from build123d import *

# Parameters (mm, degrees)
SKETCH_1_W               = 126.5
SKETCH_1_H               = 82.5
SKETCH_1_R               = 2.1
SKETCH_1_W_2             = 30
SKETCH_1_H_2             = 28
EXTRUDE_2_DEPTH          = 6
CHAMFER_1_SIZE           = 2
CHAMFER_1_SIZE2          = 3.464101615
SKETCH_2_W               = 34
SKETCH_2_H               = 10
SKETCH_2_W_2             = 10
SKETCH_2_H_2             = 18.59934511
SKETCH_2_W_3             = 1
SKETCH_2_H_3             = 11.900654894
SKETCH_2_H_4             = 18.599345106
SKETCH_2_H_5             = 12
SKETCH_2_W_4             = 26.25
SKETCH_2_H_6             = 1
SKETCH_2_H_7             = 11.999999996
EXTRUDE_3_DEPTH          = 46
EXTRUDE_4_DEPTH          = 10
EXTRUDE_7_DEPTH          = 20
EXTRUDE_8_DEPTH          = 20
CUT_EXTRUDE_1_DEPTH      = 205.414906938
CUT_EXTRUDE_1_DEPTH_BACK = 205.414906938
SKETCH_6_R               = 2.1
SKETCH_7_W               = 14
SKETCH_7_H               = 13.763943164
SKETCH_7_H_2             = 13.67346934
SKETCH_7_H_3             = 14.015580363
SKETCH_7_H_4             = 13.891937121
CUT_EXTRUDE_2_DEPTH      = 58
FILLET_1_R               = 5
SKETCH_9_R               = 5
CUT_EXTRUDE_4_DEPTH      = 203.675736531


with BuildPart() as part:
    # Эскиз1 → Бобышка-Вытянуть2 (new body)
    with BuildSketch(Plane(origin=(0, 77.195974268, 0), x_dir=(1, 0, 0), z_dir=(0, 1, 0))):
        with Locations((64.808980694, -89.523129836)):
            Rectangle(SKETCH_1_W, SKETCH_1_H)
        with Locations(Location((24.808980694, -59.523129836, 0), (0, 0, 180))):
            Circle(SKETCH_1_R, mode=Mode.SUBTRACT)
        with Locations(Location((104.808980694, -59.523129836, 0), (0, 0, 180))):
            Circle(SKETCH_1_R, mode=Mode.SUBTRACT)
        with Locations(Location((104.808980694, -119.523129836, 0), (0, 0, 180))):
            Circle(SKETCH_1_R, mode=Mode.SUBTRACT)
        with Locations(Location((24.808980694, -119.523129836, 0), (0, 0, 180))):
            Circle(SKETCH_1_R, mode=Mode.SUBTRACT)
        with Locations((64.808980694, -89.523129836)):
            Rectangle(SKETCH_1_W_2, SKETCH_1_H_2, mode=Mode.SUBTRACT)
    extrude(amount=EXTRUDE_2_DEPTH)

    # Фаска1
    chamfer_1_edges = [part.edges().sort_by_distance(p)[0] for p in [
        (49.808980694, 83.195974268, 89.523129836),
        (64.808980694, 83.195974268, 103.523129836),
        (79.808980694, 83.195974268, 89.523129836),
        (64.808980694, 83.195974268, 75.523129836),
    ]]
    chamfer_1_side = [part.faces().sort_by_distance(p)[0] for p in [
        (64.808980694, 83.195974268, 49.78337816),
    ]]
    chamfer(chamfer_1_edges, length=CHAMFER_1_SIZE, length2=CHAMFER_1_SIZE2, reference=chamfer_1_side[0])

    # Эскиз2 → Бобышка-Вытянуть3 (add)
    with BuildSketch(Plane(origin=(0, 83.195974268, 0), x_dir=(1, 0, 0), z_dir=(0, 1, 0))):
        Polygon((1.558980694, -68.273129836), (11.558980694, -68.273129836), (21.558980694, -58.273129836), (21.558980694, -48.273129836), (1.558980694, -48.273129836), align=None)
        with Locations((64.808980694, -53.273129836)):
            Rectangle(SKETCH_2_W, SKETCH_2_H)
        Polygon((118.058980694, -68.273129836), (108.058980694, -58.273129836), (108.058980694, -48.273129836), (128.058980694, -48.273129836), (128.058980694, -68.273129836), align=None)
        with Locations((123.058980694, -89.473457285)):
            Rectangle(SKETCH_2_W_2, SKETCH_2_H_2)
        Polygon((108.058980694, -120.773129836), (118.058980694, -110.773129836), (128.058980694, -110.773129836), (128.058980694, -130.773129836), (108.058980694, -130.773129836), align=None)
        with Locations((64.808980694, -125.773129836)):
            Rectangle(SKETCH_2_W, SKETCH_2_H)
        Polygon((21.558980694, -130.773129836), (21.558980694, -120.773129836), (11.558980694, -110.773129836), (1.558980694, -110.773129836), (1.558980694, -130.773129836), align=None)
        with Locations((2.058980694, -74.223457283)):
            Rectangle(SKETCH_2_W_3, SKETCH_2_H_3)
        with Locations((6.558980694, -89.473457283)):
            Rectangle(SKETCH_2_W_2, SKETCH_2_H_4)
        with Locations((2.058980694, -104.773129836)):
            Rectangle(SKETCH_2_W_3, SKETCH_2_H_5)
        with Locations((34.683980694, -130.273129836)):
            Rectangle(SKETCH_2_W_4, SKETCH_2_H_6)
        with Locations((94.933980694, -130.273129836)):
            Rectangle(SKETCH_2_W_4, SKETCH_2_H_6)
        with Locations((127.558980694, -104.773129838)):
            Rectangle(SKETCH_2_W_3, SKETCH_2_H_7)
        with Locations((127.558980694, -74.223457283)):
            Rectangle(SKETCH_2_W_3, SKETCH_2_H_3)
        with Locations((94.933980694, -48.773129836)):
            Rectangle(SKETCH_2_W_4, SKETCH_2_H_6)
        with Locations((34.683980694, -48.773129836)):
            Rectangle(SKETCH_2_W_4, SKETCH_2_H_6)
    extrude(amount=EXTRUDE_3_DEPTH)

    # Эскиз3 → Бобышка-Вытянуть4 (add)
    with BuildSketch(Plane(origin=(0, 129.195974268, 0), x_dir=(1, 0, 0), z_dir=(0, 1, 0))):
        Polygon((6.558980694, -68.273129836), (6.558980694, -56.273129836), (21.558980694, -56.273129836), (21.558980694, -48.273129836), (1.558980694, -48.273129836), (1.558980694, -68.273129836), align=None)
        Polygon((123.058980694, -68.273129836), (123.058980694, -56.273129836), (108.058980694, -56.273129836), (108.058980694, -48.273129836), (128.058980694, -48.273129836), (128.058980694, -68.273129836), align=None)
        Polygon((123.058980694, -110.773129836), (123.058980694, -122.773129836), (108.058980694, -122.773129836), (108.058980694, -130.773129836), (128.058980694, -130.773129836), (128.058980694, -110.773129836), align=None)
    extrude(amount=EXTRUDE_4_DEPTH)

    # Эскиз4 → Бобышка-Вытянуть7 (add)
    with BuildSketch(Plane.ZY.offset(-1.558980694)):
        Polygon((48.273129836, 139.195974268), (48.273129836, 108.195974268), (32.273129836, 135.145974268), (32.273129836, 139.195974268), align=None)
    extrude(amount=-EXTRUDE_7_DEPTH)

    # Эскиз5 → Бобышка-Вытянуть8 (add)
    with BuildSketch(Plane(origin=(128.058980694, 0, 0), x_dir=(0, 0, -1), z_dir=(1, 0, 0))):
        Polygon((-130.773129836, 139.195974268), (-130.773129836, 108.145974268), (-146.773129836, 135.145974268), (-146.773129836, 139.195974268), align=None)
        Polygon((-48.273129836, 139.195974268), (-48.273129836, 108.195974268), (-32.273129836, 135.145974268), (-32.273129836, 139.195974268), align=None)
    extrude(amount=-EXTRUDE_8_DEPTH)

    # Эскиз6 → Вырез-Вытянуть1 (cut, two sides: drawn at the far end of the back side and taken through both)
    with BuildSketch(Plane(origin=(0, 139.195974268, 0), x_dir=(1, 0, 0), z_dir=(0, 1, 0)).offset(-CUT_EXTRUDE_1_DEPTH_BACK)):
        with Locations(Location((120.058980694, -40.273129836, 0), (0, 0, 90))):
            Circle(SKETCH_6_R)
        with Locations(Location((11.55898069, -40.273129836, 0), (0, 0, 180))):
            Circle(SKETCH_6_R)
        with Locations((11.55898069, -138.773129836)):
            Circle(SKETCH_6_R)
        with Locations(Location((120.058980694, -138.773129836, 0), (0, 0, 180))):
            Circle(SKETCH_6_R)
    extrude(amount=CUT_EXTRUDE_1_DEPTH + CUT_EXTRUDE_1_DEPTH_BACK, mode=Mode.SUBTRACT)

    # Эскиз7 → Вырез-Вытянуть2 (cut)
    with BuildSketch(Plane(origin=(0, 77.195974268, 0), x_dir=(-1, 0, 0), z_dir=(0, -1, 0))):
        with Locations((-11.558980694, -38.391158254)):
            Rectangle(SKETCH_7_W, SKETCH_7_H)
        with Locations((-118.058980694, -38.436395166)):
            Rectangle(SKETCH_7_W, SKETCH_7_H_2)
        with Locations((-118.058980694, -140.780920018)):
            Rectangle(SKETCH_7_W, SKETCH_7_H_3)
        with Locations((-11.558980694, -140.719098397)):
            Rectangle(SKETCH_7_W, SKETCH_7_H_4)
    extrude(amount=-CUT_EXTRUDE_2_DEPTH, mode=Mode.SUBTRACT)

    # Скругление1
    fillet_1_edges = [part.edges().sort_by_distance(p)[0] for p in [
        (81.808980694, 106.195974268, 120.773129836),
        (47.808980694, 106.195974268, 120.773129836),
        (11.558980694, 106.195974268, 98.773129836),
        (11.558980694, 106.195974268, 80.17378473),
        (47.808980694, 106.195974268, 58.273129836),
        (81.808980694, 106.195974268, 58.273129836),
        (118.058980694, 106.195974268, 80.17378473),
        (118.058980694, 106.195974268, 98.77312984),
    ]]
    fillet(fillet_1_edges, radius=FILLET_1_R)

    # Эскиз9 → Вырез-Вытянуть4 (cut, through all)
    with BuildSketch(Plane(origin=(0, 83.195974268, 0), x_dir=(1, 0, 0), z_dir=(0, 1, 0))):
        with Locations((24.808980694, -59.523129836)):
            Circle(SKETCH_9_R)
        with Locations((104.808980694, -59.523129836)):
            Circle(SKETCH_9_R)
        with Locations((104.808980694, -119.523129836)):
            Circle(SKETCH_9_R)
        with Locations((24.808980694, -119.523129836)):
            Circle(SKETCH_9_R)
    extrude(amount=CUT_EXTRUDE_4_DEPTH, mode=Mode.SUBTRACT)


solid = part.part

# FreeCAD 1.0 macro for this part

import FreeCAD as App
import Part
import Sketcher

V = App.Vector
Q = App.Units.Quantity


def edges_at(feature, points):
    """Names of the edges that pass closest to the given points."""
    edges = feature.Shape.Edges
    near = lambda p: min(range(len(edges)), key=lambda i: edges[i].distToShape(Part.Vertex(*p))[0])
    return sorted({f"Edge{near(p) + 1}" for p in points})


def add_polygon(sketch, points):
    """Adds a closed chain of lines whose ends are joined by coincident constraints."""
    first, n = sketch.GeometryCount, len(points)
    for a, b in zip(points, points[1:] + points[:1]):
        sketch.addGeometry(Part.LineSegment(App.Vector(*a, 0), App.Vector(*b, 0)), False)
    for i in range(n):
        sketch.addConstraint(Sketcher.Constraint("Coincident", first + i, 2, first + (i + 1) % n, 1))

doc = App.newDocument("Part")
body = doc.addObject("PartDesign::Body", "Body")

# Sketch on XZ plane
sketch1 = body.newObject("Sketcher::SketchObject", "Sketch")
sketch1.AttachmentSupport = (doc.getObject("XZ_Plane"), [""])
sketch1.MapMode = "FlatFace"
sketch1.AttachmentOffset = App.Placement(V(0, 0, -77.195974), App.Rotation())
add_polygon(sketch1, [(1.6, 48.3), (1.6, 130.8), (128.1, 130.8), (128.1, 48.3)])  # lines 0-3
sketch1.addGeometry(Part.Circle(V(24.8, 119.5, 0), V(0, 0, 1), 2.1), False)  # 4
sketch1.addGeometry(Part.Circle(V(104.8, 119.5, 0), V(0, 0, 1), 2.1), False)  # 5
sketch1.addGeometry(Part.Circle(V(24.8, 59.5, 0), V(0, 0, 1), 2.1), False)  # 6
add_polygon(sketch1, [(79.8, 103.5), (49.8, 103.5), (49.8, 75.5), (79.8, 75.5)])  # lines 7-10
sketch1.addGeometry(Part.Circle(V(104.8, 59.5, 0), V(0, 0, 1), 2.1), False)  # 11
sketch1.addConstraint(Sketcher.Constraint("Vertical", 0))
sketch1.addConstraint(Sketcher.Constraint("Horizontal", 1))
sketch1.addConstraint(Sketcher.Constraint("Vertical", 2))
sketch1.addConstraint(Sketcher.Constraint("Horizontal", 3))
sketch1.addConstraint(Sketcher.Constraint("Horizontal", 7))
sketch1.addConstraint(Sketcher.Constraint("Vertical", 8))
sketch1.addConstraint(Sketcher.Constraint("Horizontal", 9))
sketch1.addConstraint(Sketcher.Constraint("Vertical", 10))
sketch1.addConstraint(Sketcher.Constraint("Equal", 4, 5))
sketch1.addConstraint(Sketcher.Constraint("Equal", 5, 6))
sketch1.addConstraint(Sketcher.Constraint("Equal", 6, 11))
sketch1.addConstraint(Sketcher.Constraint("Horizontal", 4, 3, 5, 3))
sketch1.addConstraint(Sketcher.Constraint("Horizontal", 6, 3, 11, 3))
sketch1.addConstraint(Sketcher.Constraint("Vertical", 4, 3, 6, 3))
sketch1.addConstraint(Sketcher.Constraint("Vertical", 5, 3, 11, 3))
sketch1.addConstraint(Sketcher.Constraint("Diameter", 4, Q("4.2 mm")))
sketch1.addConstraint(Sketcher.Constraint("DistanceX", 7, 2, 7, 1, Q("30 mm")))
sketch1.addConstraint(Sketcher.Constraint("DistanceY", 8, 2, 8, 1, Q("28 mm")))
sketch1.addConstraint(Sketcher.Constraint("DistanceX", 1, 1, 1, 2, Q("126.5 mm")))
sketch1.addConstraint(Sketcher.Constraint("DistanceY", 0, 1, 0, 2, Q("82.5 mm")))
sketch1.addConstraint(Sketcher.Constraint("DistanceX", 4, 3, 5, 3, Q("80 mm")))
sketch1.addConstraint(Sketcher.Constraint("DistanceY", 6, 3, 4, 3, Q("60 mm")))
sketch1.addConstraint(Sketcher.Constraint("DistanceX", 4, 3, 7, 2, Q("25 mm")))
sketch1.addConstraint(Sketcher.Constraint("DistanceY", 7, 2, 4, 3, Q("16 mm")))
sketch1.addConstraint(Sketcher.Constraint("DistanceX", 0, 2, 4, 3, Q("23.25 mm")))
sketch1.addConstraint(Sketcher.Constraint("DistanceY", 4, 3, 0, 2, Q("11.25 mm")))
sketch1.addConstraint(Sketcher.Constraint("DistanceX", -1, 1, 4, 3, Q("24.808981 mm")))
sketch1.addConstraint(Sketcher.Constraint("DistanceY", -1, 1, 4, 3, Q("119.52313 mm")))
pad1 = body.newObject("PartDesign::Pad", "Pad")
pad1.Profile = sketch1
pad1.Length = 6
pad1.Reversed = True
doc.recompute()

chamfer = body.newObject("PartDesign::Chamfer", "Chamfer")
chamfer.Base = (pad1, edges_at(pad1, [
    (49.809, 83.196, 89.523),
    (64.809, 83.196, 103.523),
    (79.809, 83.196, 89.523),
    (64.809, 83.196, 75.523),
]))
chamfer.ChamferType = "Two distances"
chamfer.Size = 2
chamfer.Size2 = 3.464102
chamfer.FlipDirection = True

# Sketch on XZ plane
sketch2 = body.newObject("Sketcher::SketchObject", "Sketch001")
sketch2.AttachmentSupport = (doc.getObject("XZ_Plane"), [""])
sketch2.MapMode = "FlatFace"
sketch2.AttachmentOffset = App.Placement(V(0, 0, -83.195974), App.Rotation())
add_polygon(sketch2, [(2, 48), (2, 131), (128, 131), (128, 48)])  # lines 0-3
add_polygon(sketch2, [(3, 68), (12, 68), (22, 58), (22, 49), (48, 49), (48, 58), (82, 58), (82, 49), (108, 49), (108, 58), (118, 68), (127, 68), (127, 80), (118, 80), (118, 99), (127, 99), (127, 111), (118, 111), (108, 121), (108, 130), (82, 130), (82, 121), (48, 121), (48, 130), (22, 130), (22, 121), (12, 111), (3, 111), (3, 99), (12, 99), (12, 80), (3, 80)])  # lines 4-35
sketch2.addConstraint(Sketcher.Constraint("Vertical", 0))
sketch2.addConstraint(Sketcher.Constraint("Horizontal", 1))
sketch2.addConstraint(Sketcher.Constraint("Vertical", 2))
sketch2.addConstraint(Sketcher.Constraint("Horizontal", 3))
sketch2.addConstraint(Sketcher.Constraint("Horizontal", 4))
sketch2.addConstraint(Sketcher.Constraint("Vertical", 6))
sketch2.addConstraint(Sketcher.Constraint("Horizontal", 7))
sketch2.addConstraint(Sketcher.Constraint("Vertical", 8))
sketch2.addConstraint(Sketcher.Constraint("Horizontal", 9))
sketch2.addConstraint(Sketcher.Constraint("Vertical", 10))
sketch2.addConstraint(Sketcher.Constraint("Horizontal", 11))
sketch2.addConstraint(Sketcher.Constraint("Vertical", 12))
sketch2.addConstraint(Sketcher.Constraint("Horizontal", 14))
sketch2.addConstraint(Sketcher.Constraint("Vertical", 15))
sketch2.addConstraint(Sketcher.Constraint("Horizontal", 16))
sketch2.addConstraint(Sketcher.Constraint("Vertical", 17))
sketch2.addConstraint(Sketcher.Constraint("Horizontal", 18))
sketch2.addConstraint(Sketcher.Constraint("Vertical", 19))
sketch2.addConstraint(Sketcher.Constraint("Horizontal", 20))
sketch2.addConstraint(Sketcher.Constraint("Vertical", 22))
sketch2.addConstraint(Sketcher.Constraint("Horizontal", 23))
sketch2.addConstraint(Sketcher.Constraint("Vertical", 24))
sketch2.addConstraint(Sketcher.Constraint("Horizontal", 25))
sketch2.addConstraint(Sketcher.Constraint("Vertical", 26))
sketch2.addConstraint(Sketcher.Constraint("Horizontal", 27))
sketch2.addConstraint(Sketcher.Constraint("Vertical", 28))
sketch2.addConstraint(Sketcher.Constraint("Horizontal", 30))
sketch2.addConstraint(Sketcher.Constraint("Vertical", 31))
sketch2.addConstraint(Sketcher.Constraint("Horizontal", 32))
sketch2.addConstraint(Sketcher.Constraint("Vertical", 33))
sketch2.addConstraint(Sketcher.Constraint("Horizontal", 34))
sketch2.addConstraint(Sketcher.Constraint("Vertical", 35))
sketch2.addConstraint(Sketcher.Constraint("Perpendicular", 5, 13))
sketch2.addConstraint(Sketcher.Constraint("Perpendicular", 13, 21))
sketch2.addConstraint(Sketcher.Constraint("Perpendicular", 21, 29))
sketch2.addConstraint(Sketcher.Constraint("Horizontal", 5, 2, 8, 2))
sketch2.addConstraint(Sketcher.Constraint("Horizontal", 7, 2, 10, 2))
sketch2.addConstraint(Sketcher.Constraint("Horizontal", 9, 2, 12, 2))
sketch2.addConstraint(Sketcher.Constraint("Horizontal", 4, 2, 13, 2))
sketch2.addConstraint(Sketcher.Constraint("Horizontal", 21, 2, 24, 2))
sketch2.addConstraint(Sketcher.Constraint("Horizontal", 23, 2, 26, 2))
sketch2.addConstraint(Sketcher.Constraint("Horizontal", 25, 2, 28, 2))
sketch2.addConstraint(Sketcher.Constraint("Horizontal", 20, 2, 29, 2))
sketch2.addConstraint(Sketcher.Constraint("Horizontal", 18, 2, 31, 2))
sketch2.addConstraint(Sketcher.Constraint("Horizontal", 16, 2, 33, 2))
sketch2.addConstraint(Sketcher.Constraint("Vertical", 13, 2, 16, 2))
sketch2.addConstraint(Sketcher.Constraint("Vertical", 15, 2, 18, 2))
sketch2.addConstraint(Sketcher.Constraint("Vertical", 17, 2, 20, 2))
sketch2.addConstraint(Sketcher.Constraint("Vertical", 12, 2, 21, 2))
sketch2.addConstraint(Sketcher.Constraint("Vertical", 10, 2, 23, 2))
sketch2.addConstraint(Sketcher.Constraint("Vertical", 8, 2, 25, 2))
sketch2.addConstraint(Sketcher.Constraint("Vertical", 6, 2, 27, 2))
sketch2.addConstraint(Sketcher.Constraint("Vertical", 4, 2, 29, 2))
sketch2.addConstraint(Sketcher.Constraint("Vertical", 29, 2, 32, 2))
sketch2.addConstraint(Sketcher.Constraint("Vertical", 31, 2, 34, 2))
sketch2.addConstraint(Sketcher.Constraint("Equal", 7, 11))
sketch2.addConstraint(Sketcher.Constraint("Equal", 4, 14))
sketch2.addConstraint(Sketcher.Constraint("Equal", 34, 6))
sketch2.addConstraint(Sketcher.Constraint("Equal", 12, 22))
sketch2.addConstraint(Sketcher.Constraint("DistanceX", 4, 1, 4, 2, Q("9 mm")))
sketch2.addConstraint(Sketcher.Constraint("DistanceX", 9, 1, 9, 2, Q("34 mm")))
sketch2.addConstraint(Sketcher.Constraint("DistanceY", 19, 1, 19, 2, Q("12 mm")))
sketch2.addConstraint(Sketcher.Constraint("DistanceX", 1, 1, 1, 2, Q("126.5 mm")))
sketch2.addConstraint(Sketcher.Constraint("DistanceY", 0, 1, 0, 2, Q("82.5 mm")))
sketch2.addConstraint(Sketcher.Constraint("DistanceX", 3, 2, 4, 2, Q("10 mm")))
sketch2.addConstraint(Sketcher.Constraint("DistanceY", 3, 2, 4, 2, Q("20 mm")))
sketch2.addConstraint(Sketcher.Constraint("DistanceX", 4, 2, 5, 2, Q("10 mm")))
sketch2.addConstraint(Sketcher.Constraint("DistanceX", 11, 2, 2, 2, Q("20 mm")))
sketch2.addConstraint(Sketcher.Constraint("DistanceY", 17, 2, 1, 2, Q("32 mm")))
sketch2.addConstraint(Sketcher.Constraint("DistanceY", 15, 1, 15, 2, Q("11.900655 mm")))
sketch2.addConstraint(Sketcher.Constraint("DistanceX", -1, 1, 0, 2, Q("1.558981 mm")))
sketch2.addConstraint(Sketcher.Constraint("DistanceY", -1, 1, 0, 2, Q("130.77313 mm")))
pad2 = body.newObject("PartDesign::Pad", "Pad001")
pad2.Profile = sketch2
pad2.Length = 46
pad2.Reversed = True

# Sketch on XZ plane
sketch3 = body.newObject("Sketcher::SketchObject", "Sketch002")
sketch3.AttachmentSupport = (doc.getObject("XZ_Plane"), [""])
sketch3.MapMode = "FlatFace"
sketch3.AttachmentOffset = App.Placement(V(0, 0, -129.195974), App.Rotation())
add_polygon(sketch3, [(7, 68), (7, 56), (22, 56), (22, 48), (2, 48), (2, 68)])  # lines 0-5
add_polygon(sketch3, [(123, 56), (123, 68), (128, 68), (128, 48), (108, 48), (108, 56)])  # lines 6-11
add_polygon(sketch3, [(123, 111), (123, 123), (108, 123), (108, 131), (128, 131), (128, 111)])  # lines 12-17
sketch3.addConstraint(Sketcher.Constraint("Vertical", 0))
sketch3.addConstraint(Sketcher.Constraint("Horizontal", 1))
sketch3.addConstraint(Sketcher.Constraint("Vertical", 2))
sketch3.addConstraint(Sketcher.Constraint("Horizontal", 3))
sketch3.addConstraint(Sketcher.Constraint("Vertical", 4))
sketch3.addConstraint(Sketcher.Constraint("Horizontal", 5))
sketch3.addConstraint(Sketcher.Constraint("Vertical", 6))
sketch3.addConstraint(Sketcher.Constraint("Horizontal", 7))
sketch3.addConstraint(Sketcher.Constraint("Vertical", 8))
sketch3.addConstraint(Sketcher.Constraint("Horizontal", 9))
sketch3.addConstraint(Sketcher.Constraint("Vertical", 10))
sketch3.addConstraint(Sketcher.Constraint("Horizontal", 11))
sketch3.addConstraint(Sketcher.Constraint("Vertical", 12))
sketch3.addConstraint(Sketcher.Constraint("Horizontal", 13))
sketch3.addConstraint(Sketcher.Constraint("Vertical", 14))
sketch3.addConstraint(Sketcher.Constraint("Horizontal", 15))
sketch3.addConstraint(Sketcher.Constraint("Vertical", 16))
sketch3.addConstraint(Sketcher.Constraint("Horizontal", 17))
sketch3.addConstraint(Sketcher.Constraint("Horizontal", 5, 2, 6, 2))
sketch3.addConstraint(Sketcher.Constraint("Horizontal", 3, 2, 8, 2))
sketch3.addConstraint(Sketcher.Constraint("Horizontal", 1, 2, 10, 2))
sketch3.addConstraint(Sketcher.Constraint("Vertical", 11, 2, 12, 2))
sketch3.addConstraint(Sketcher.Constraint("Vertical", 10, 2, 13, 2))
sketch3.addConstraint(Sketcher.Constraint("Vertical", 8, 2, 15, 2))
sketch3.addConstraint(Sketcher.Constraint("Equal", 5, 7))
sketch3.addConstraint(Sketcher.Constraint("Equal", 3, 9))
sketch3.addConstraint(Sketcher.Constraint("Equal", 15, 4))
sketch3.addConstraint(Sketcher.Constraint("Equal", 6, 12))
sketch3.addConstraint(Sketcher.Constraint("Equal", 10, 14))
sketch3.addConstraint(Sketcher.Constraint("DistanceX", 1, 1, 1, 2, Q("15 mm")))
sketch3.addConstraint(Sketcher.Constraint("DistanceX", 3, 2, 3, 1, Q("20 mm")))
sketch3.addConstraint(Sketcher.Constraint("DistanceY", 0, 2, 0, 1, Q("12 mm")))
sketch3.addConstraint(Sketcher.Constraint("DistanceX", 1, 2, 6, 2, Q("101.5 mm")))
sketch3.addConstraint(Sketcher.Constraint("DistanceY", 6, 2, 12, 2, Q("54.5 mm")))
sketch3.addConstraint(Sketcher.Constraint("DistanceX", -1, 1, 0, 2, Q("6.558981 mm")))
sketch3.addConstraint(Sketcher.Constraint("DistanceY", -1, 1, 0, 2, Q("56.27313 mm")))
pad3 = body.newObject("PartDesign::Pad", "Pad002")
pad3.Profile = sketch3
pad3.Length = 10
pad3.Reversed = True

# Sketch on YZ plane
sketch4 = body.newObject("Sketcher::SketchObject", "Sketch003")
sketch4.AttachmentSupport = (doc.getObject("YZ_Plane"), [""])
sketch4.MapMode = "FlatFace"
sketch4.AttachmentOffset = App.Placement(V(0, 0, 1.558981), App.Rotation())
add_polygon(sketch4, [(108.2, 48.3), (139.2, 48.3), (139.2, 32.3), (135.1, 32.3)])  # lines 0-3
sketch4.addConstraint(Sketcher.Constraint("Horizontal", 0))
sketch4.addConstraint(Sketcher.Constraint("Vertical", 1))
sketch4.addConstraint(Sketcher.Constraint("Horizontal", 2))
sketch4.addConstraint(Sketcher.Constraint("DistanceX", 0, 1, 0, 2, Q("31 mm")))
sketch4.addConstraint(Sketcher.Constraint("DistanceY", 1, 2, 1, 1, Q("16 mm")))
sketch4.addConstraint(Sketcher.Constraint("DistanceX", 2, 2, 2, 1, Q("4.05 mm")))
sketch4.addConstraint(Sketcher.Constraint("DistanceY", -1, 1, 0, 2, Q("48.27313 mm")))
sketch4.addConstraint(Sketcher.Constraint("DistanceX", -1, 1, 0, 2, Q("139.195974 mm")))
pad4 = body.newObject("PartDesign::Pad", "Pad003")
pad4.Profile = sketch4
pad4.Length = 20

# Sketch on YZ plane
sketch5 = body.newObject("Sketcher::SketchObject", "Sketch004")
sketch5.AttachmentSupport = (doc.getObject("YZ_Plane"), [""])
sketch5.MapMode = "FlatFace"
sketch5.AttachmentOffset = App.Placement(V(0, 0, 128.058981), App.Rotation())
add_polygon(sketch5, [(108.1, 130.8), (139.2, 130.8), (139.2, 146.8), (135.1, 146.8)])  # lines 0-3
add_polygon(sketch5, [(139.2, 48.3), (108.2, 48.3), (135.1, 32.3), (139.2, 32.3)])  # lines 4-7
sketch5.addConstraint(Sketcher.Constraint("Horizontal", 0))
sketch5.addConstraint(Sketcher.Constraint("Vertical", 1))
sketch5.addConstraint(Sketcher.Constraint("Horizontal", 2))
sketch5.addConstraint(Sketcher.Constraint("Horizontal", 4))
sketch5.addConstraint(Sketcher.Constraint("Horizontal", 6))
sketch5.addConstraint(Sketcher.Constraint("Vertical", 7))
sketch5.addConstraint(Sketcher.Constraint("Vertical", 2, 2, 5, 2))
sketch5.addConstraint(Sketcher.Constraint("Vertical", 1, 2, 6, 2))
sketch5.addConstraint(Sketcher.Constraint("Equal", 1, 7))
sketch5.addConstraint(Sketcher.Constraint("DistanceX", 4, 2, 4, 1, Q("31 mm")))
sketch5.addConstraint(Sketcher.Constraint("DistanceY", 1, 1, 1, 2, Q("16 mm")))
sketch5.addConstraint(Sketcher.Constraint("DistanceX", 3, 2, 2, 2, Q("27 mm")))
sketch5.addConstraint(Sketcher.Constraint("DistanceX", 0, 1, 0, 2, Q("31.05 mm")))
sketch5.addConstraint(Sketcher.Constraint("DistanceY", 4, 2, 3, 2, Q("82.5 mm")))
sketch5.addConstraint(Sketcher.Constraint("DistanceY", -1, 1, 0, 2, Q("130.77313 mm")))
sketch5.addConstraint(Sketcher.Constraint("DistanceX", -1, 1, 0, 2, Q("139.195974 mm")))
pad5 = body.newObject("PartDesign::Pad", "Pad004")
pad5.Profile = sketch5
pad5.Length = 20
pad5.Reversed = True

# Sketch on XZ plane
sketch6 = body.newObject("Sketcher::SketchObject", "Sketch005")
sketch6.AttachmentSupport = (doc.getObject("XZ_Plane"), [""])
sketch6.MapMode = "FlatFace"
sketch6.AttachmentOffset = App.Placement(V(0, 0, -139.195974), App.Rotation())
sketch6.addGeometry(Part.Circle(V(120.1, 40.3, 0), V(0, 0, 1), 2.1), False)
sketch6.addGeometry(Part.Circle(V(11.6, 40.3, 0), V(0, 0, 1), 2.1), False)
sketch6.addGeometry(Part.Circle(V(11.6, 138.8, 0), V(0, 0, 1), 2.1), False)
sketch6.addGeometry(Part.Circle(V(120.1, 138.8, 0), V(0, 0, 1), 2.1), False)
sketch6.addConstraint(Sketcher.Constraint("Equal", 0, 1))
sketch6.addConstraint(Sketcher.Constraint("Equal", 1, 2))
sketch6.addConstraint(Sketcher.Constraint("Equal", 2, 3))
sketch6.addConstraint(Sketcher.Constraint("Horizontal", 0, 3, 1, 3))
sketch6.addConstraint(Sketcher.Constraint("Horizontal", 2, 3, 3, 3))
sketch6.addConstraint(Sketcher.Constraint("Vertical", 1, 3, 2, 3))
sketch6.addConstraint(Sketcher.Constraint("Vertical", 0, 3, 3, 3))
sketch6.addConstraint(Sketcher.Constraint("Diameter", 0, Q("4.2 mm")))
sketch6.addConstraint(Sketcher.Constraint("DistanceX", 1, 3, 0, 3, Q("108.5 mm")))
sketch6.addConstraint(Sketcher.Constraint("DistanceY", 1, 3, 2, 3, Q("98.5 mm")))
sketch6.addConstraint(Sketcher.Constraint("DistanceX", -1, 1, 0, 3, Q("120.058981 mm")))
sketch6.addConstraint(Sketcher.Constraint("DistanceY", -1, 1, 0, 3, Q("40.27313 mm")))
pocket1 = body.newObject("PartDesign::Pocket", "Pocket")
pocket1.Profile = sketch6
pocket1.Type = "ThroughAll"
pocket1.Midplane = True

# Sketch on XZ plane
sketch7 = body.newObject("Sketcher::SketchObject", "Sketch006")
sketch7.AttachmentSupport = (doc.getObject("XZ_Plane"), [""])
sketch7.MapMode = "FlatFace"
sketch7.AttachmentOffset = App.Placement(V(0, 0, -77.195974), App.Rotation())
add_polygon(sketch7, [(19, 32), (19, 45), (5, 45), (5, 32)])  # lines 0-3
add_polygon(sketch7, [(125, 32), (125, 45), (111, 45), (111, 32)])  # lines 4-7
add_polygon(sketch7, [(125, 134), (125, 148), (111, 148), (111, 134)])  # lines 8-11
add_polygon(sketch7, [(19, 134), (19, 148), (5, 148), (5, 134)])  # lines 12-15
sketch7.addConstraint(Sketcher.Constraint("Vertical", 0))
sketch7.addConstraint(Sketcher.Constraint("Horizontal", 1))
sketch7.addConstraint(Sketcher.Constraint("Vertical", 2))
sketch7.addConstraint(Sketcher.Constraint("Horizontal", 3))
sketch7.addConstraint(Sketcher.Constraint("Vertical", 4))
sketch7.addConstraint(Sketcher.Constraint("Horizontal", 5))
sketch7.addConstraint(Sketcher.Constraint("Vertical", 6))
sketch7.addConstraint(Sketcher.Constraint("Horizontal", 7))
sketch7.addConstraint(Sketcher.Constraint("Vertical", 8))
sketch7.addConstraint(Sketcher.Constraint("Horizontal", 9))
sketch7.addConstraint(Sketcher.Constraint("Vertical", 10))
sketch7.addConstraint(Sketcher.Constraint("Horizontal", 11))
sketch7.addConstraint(Sketcher.Constraint("Vertical", 12))
sketch7.addConstraint(Sketcher.Constraint("Horizontal", 13))
sketch7.addConstraint(Sketcher.Constraint("Vertical", 14))
sketch7.addConstraint(Sketcher.Constraint("Horizontal", 15))
sketch7.addConstraint(Sketcher.Constraint("Horizontal", 1, 2, 4, 2))
sketch7.addConstraint(Sketcher.Constraint("Horizontal", 11, 2, 14, 2))
sketch7.addConstraint(Sketcher.Constraint("Vertical", 7, 2, 8, 2))
sketch7.addConstraint(Sketcher.Constraint("Vertical", 6, 2, 9, 2))
sketch7.addConstraint(Sketcher.Constraint("Vertical", 3, 2, 12, 2))
sketch7.addConstraint(Sketcher.Constraint("Vertical", 2, 2, 13, 2))
sketch7.addConstraint(Sketcher.Constraint("Equal", 3, 5))
sketch7.addConstraint(Sketcher.Constraint("DistanceX", 1, 2, 1, 1, Q("14 mm")))
sketch7.addConstraint(Sketcher.Constraint("DistanceX", 0, 2, 4, 2, Q("106.5 mm")))
sketch7.addConstraint(Sketcher.Constraint("DistanceY", 5, 2, 10, 2, Q("88.5 mm")))
sketch7.addConstraint(Sketcher.Constraint("DistanceY", 4, 1, 4, 2, Q("13.673469 mm")))
sketch7.addConstraint(Sketcher.Constraint("DistanceY", 8, 1, 8, 2, Q("14.01558 mm")))
sketch7.addConstraint(Sketcher.Constraint("DistanceY", 0, 1, 0, 2, Q("13.763943 mm")))
sketch7.addConstraint(Sketcher.Constraint("DistanceY", 12, 1, 12, 2, Q("13.891937 mm")))
sketch7.addConstraint(Sketcher.Constraint("DistanceX", -1, 1, 0, 2, Q("18.558981 mm")))
sketch7.addConstraint(Sketcher.Constraint("DistanceY", -1, 1, 0, 2, Q("45.27313 mm")))
pocket2 = body.newObject("PartDesign::Pocket", "Pocket001")
pocket2.Profile = sketch7
pocket2.Length = 58
doc.recompute()

fillet = body.newObject("PartDesign::Fillet", "Fillet")
fillet.Base = (pocket2, edges_at(pocket2, [
    (81.809, 106.196, 120.773),
    (47.809, 106.196, 120.773),
    (11.559, 106.196, 98.773),
    (11.559, 106.196, 80.174),
    (47.809, 106.196, 58.273),
    (81.809, 106.196, 58.273),
    (118.059, 106.196, 80.174),
    (118.059, 106.196, 98.773),
]))
fillet.Radius = 5

# Sketch on XZ plane
sketch8 = body.newObject("Sketcher::SketchObject", "Sketch007")
sketch8.AttachmentSupport = (doc.getObject("XZ_Plane"), [""])
sketch8.MapMode = "FlatFace"
sketch8.AttachmentOffset = App.Placement(V(0, 0, -83.195974), App.Rotation())
sketch8.addGeometry(Part.Circle(V(25, 60, 0), V(0, 0, 1), 5), False)
sketch8.addGeometry(Part.Circle(V(105, 60, 0), V(0, 0, 1), 5), False)
sketch8.addGeometry(Part.Circle(V(105, 120, 0), V(0, 0, 1), 5), False)
sketch8.addGeometry(Part.Circle(V(25, 120, 0), V(0, 0, 1), 5), False)
sketch8.addConstraint(Sketcher.Constraint("Equal", 0, 1))
sketch8.addConstraint(Sketcher.Constraint("Equal", 1, 2))
sketch8.addConstraint(Sketcher.Constraint("Equal", 2, 3))
sketch8.addConstraint(Sketcher.Constraint("Horizontal", 0, 3, 1, 3))
sketch8.addConstraint(Sketcher.Constraint("Horizontal", 2, 3, 3, 3))
sketch8.addConstraint(Sketcher.Constraint("Vertical", 1, 3, 2, 3))
sketch8.addConstraint(Sketcher.Constraint("Vertical", 0, 3, 3, 3))
sketch8.addConstraint(Sketcher.Constraint("Diameter", 0, Q("10 mm")))
sketch8.addConstraint(Sketcher.Constraint("DistanceX", 0, 3, 1, 3, Q("80 mm")))
sketch8.addConstraint(Sketcher.Constraint("DistanceY", 1, 3, 2, 3, Q("60 mm")))
sketch8.addConstraint(Sketcher.Constraint("DistanceX", -1, 1, 0, 3, Q("24.808981 mm")))
sketch8.addConstraint(Sketcher.Constraint("DistanceY", -1, 1, 0, 3, Q("59.52313 mm")))
pocket3 = body.newObject("PartDesign::Pocket", "Pocket002")
pocket3.Profile = sketch8
pocket3.Type = "ThroughAll"

doc.recompute()
